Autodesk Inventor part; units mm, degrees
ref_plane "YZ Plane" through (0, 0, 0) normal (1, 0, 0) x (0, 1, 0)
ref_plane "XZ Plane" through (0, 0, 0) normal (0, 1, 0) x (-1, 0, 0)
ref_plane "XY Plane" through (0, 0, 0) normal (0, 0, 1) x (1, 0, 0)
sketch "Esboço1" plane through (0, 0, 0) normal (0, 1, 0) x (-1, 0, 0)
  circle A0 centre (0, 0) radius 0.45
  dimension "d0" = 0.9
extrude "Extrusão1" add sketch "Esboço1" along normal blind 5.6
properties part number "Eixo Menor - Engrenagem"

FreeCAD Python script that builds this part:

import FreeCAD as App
import Part
import Sketcher
Q = App.Units.Quantity

doc = App.newDocument("Part")
params = doc.addObject("Spreadsheet::Sheet", "Params")
for row, (alias, value) in enumerate([
    ("sketch1_diameter", "0.9 mm"),
    ("pad1_length", "5.6 mm"),
], start=1):
    params.set(f"A{row}", alias)
    params.set(f"B{row}", "=" + value)
    params.setAlias(f"B{row}", alias)

body = doc.addObject("PartDesign::Body", "Body")

# Sketch on XZ plane
sketch1 = body.newObject("Sketcher::SketchObject", "Sketch")
sketch1.AttachmentSupport = (doc.getObject("XZ_Plane"), [""])
sketch1.MapMode = "FlatFace"
sketch1.addGeometry(Part.Circle(App.Vector(0, 0, 0), App.Vector(0, 0, 1), 0.45), False)
sketch1.addConstraint(Sketcher.Constraint("Coincident", 0, 3, -1, 1))
sketch1.addConstraint(Sketcher.Constraint("Diameter", 0, Q("0.9 mm")))
sketch1.setExpression("Constraints[1]", "Params.sketch1_diameter")
pad1 = body.newObject("PartDesign::Pad", "Pad")
pad1.Profile = sketch1
pad1.setExpression("Length", "Params.pad1_length")
pad1.Reversed = True

doc.recompute()
